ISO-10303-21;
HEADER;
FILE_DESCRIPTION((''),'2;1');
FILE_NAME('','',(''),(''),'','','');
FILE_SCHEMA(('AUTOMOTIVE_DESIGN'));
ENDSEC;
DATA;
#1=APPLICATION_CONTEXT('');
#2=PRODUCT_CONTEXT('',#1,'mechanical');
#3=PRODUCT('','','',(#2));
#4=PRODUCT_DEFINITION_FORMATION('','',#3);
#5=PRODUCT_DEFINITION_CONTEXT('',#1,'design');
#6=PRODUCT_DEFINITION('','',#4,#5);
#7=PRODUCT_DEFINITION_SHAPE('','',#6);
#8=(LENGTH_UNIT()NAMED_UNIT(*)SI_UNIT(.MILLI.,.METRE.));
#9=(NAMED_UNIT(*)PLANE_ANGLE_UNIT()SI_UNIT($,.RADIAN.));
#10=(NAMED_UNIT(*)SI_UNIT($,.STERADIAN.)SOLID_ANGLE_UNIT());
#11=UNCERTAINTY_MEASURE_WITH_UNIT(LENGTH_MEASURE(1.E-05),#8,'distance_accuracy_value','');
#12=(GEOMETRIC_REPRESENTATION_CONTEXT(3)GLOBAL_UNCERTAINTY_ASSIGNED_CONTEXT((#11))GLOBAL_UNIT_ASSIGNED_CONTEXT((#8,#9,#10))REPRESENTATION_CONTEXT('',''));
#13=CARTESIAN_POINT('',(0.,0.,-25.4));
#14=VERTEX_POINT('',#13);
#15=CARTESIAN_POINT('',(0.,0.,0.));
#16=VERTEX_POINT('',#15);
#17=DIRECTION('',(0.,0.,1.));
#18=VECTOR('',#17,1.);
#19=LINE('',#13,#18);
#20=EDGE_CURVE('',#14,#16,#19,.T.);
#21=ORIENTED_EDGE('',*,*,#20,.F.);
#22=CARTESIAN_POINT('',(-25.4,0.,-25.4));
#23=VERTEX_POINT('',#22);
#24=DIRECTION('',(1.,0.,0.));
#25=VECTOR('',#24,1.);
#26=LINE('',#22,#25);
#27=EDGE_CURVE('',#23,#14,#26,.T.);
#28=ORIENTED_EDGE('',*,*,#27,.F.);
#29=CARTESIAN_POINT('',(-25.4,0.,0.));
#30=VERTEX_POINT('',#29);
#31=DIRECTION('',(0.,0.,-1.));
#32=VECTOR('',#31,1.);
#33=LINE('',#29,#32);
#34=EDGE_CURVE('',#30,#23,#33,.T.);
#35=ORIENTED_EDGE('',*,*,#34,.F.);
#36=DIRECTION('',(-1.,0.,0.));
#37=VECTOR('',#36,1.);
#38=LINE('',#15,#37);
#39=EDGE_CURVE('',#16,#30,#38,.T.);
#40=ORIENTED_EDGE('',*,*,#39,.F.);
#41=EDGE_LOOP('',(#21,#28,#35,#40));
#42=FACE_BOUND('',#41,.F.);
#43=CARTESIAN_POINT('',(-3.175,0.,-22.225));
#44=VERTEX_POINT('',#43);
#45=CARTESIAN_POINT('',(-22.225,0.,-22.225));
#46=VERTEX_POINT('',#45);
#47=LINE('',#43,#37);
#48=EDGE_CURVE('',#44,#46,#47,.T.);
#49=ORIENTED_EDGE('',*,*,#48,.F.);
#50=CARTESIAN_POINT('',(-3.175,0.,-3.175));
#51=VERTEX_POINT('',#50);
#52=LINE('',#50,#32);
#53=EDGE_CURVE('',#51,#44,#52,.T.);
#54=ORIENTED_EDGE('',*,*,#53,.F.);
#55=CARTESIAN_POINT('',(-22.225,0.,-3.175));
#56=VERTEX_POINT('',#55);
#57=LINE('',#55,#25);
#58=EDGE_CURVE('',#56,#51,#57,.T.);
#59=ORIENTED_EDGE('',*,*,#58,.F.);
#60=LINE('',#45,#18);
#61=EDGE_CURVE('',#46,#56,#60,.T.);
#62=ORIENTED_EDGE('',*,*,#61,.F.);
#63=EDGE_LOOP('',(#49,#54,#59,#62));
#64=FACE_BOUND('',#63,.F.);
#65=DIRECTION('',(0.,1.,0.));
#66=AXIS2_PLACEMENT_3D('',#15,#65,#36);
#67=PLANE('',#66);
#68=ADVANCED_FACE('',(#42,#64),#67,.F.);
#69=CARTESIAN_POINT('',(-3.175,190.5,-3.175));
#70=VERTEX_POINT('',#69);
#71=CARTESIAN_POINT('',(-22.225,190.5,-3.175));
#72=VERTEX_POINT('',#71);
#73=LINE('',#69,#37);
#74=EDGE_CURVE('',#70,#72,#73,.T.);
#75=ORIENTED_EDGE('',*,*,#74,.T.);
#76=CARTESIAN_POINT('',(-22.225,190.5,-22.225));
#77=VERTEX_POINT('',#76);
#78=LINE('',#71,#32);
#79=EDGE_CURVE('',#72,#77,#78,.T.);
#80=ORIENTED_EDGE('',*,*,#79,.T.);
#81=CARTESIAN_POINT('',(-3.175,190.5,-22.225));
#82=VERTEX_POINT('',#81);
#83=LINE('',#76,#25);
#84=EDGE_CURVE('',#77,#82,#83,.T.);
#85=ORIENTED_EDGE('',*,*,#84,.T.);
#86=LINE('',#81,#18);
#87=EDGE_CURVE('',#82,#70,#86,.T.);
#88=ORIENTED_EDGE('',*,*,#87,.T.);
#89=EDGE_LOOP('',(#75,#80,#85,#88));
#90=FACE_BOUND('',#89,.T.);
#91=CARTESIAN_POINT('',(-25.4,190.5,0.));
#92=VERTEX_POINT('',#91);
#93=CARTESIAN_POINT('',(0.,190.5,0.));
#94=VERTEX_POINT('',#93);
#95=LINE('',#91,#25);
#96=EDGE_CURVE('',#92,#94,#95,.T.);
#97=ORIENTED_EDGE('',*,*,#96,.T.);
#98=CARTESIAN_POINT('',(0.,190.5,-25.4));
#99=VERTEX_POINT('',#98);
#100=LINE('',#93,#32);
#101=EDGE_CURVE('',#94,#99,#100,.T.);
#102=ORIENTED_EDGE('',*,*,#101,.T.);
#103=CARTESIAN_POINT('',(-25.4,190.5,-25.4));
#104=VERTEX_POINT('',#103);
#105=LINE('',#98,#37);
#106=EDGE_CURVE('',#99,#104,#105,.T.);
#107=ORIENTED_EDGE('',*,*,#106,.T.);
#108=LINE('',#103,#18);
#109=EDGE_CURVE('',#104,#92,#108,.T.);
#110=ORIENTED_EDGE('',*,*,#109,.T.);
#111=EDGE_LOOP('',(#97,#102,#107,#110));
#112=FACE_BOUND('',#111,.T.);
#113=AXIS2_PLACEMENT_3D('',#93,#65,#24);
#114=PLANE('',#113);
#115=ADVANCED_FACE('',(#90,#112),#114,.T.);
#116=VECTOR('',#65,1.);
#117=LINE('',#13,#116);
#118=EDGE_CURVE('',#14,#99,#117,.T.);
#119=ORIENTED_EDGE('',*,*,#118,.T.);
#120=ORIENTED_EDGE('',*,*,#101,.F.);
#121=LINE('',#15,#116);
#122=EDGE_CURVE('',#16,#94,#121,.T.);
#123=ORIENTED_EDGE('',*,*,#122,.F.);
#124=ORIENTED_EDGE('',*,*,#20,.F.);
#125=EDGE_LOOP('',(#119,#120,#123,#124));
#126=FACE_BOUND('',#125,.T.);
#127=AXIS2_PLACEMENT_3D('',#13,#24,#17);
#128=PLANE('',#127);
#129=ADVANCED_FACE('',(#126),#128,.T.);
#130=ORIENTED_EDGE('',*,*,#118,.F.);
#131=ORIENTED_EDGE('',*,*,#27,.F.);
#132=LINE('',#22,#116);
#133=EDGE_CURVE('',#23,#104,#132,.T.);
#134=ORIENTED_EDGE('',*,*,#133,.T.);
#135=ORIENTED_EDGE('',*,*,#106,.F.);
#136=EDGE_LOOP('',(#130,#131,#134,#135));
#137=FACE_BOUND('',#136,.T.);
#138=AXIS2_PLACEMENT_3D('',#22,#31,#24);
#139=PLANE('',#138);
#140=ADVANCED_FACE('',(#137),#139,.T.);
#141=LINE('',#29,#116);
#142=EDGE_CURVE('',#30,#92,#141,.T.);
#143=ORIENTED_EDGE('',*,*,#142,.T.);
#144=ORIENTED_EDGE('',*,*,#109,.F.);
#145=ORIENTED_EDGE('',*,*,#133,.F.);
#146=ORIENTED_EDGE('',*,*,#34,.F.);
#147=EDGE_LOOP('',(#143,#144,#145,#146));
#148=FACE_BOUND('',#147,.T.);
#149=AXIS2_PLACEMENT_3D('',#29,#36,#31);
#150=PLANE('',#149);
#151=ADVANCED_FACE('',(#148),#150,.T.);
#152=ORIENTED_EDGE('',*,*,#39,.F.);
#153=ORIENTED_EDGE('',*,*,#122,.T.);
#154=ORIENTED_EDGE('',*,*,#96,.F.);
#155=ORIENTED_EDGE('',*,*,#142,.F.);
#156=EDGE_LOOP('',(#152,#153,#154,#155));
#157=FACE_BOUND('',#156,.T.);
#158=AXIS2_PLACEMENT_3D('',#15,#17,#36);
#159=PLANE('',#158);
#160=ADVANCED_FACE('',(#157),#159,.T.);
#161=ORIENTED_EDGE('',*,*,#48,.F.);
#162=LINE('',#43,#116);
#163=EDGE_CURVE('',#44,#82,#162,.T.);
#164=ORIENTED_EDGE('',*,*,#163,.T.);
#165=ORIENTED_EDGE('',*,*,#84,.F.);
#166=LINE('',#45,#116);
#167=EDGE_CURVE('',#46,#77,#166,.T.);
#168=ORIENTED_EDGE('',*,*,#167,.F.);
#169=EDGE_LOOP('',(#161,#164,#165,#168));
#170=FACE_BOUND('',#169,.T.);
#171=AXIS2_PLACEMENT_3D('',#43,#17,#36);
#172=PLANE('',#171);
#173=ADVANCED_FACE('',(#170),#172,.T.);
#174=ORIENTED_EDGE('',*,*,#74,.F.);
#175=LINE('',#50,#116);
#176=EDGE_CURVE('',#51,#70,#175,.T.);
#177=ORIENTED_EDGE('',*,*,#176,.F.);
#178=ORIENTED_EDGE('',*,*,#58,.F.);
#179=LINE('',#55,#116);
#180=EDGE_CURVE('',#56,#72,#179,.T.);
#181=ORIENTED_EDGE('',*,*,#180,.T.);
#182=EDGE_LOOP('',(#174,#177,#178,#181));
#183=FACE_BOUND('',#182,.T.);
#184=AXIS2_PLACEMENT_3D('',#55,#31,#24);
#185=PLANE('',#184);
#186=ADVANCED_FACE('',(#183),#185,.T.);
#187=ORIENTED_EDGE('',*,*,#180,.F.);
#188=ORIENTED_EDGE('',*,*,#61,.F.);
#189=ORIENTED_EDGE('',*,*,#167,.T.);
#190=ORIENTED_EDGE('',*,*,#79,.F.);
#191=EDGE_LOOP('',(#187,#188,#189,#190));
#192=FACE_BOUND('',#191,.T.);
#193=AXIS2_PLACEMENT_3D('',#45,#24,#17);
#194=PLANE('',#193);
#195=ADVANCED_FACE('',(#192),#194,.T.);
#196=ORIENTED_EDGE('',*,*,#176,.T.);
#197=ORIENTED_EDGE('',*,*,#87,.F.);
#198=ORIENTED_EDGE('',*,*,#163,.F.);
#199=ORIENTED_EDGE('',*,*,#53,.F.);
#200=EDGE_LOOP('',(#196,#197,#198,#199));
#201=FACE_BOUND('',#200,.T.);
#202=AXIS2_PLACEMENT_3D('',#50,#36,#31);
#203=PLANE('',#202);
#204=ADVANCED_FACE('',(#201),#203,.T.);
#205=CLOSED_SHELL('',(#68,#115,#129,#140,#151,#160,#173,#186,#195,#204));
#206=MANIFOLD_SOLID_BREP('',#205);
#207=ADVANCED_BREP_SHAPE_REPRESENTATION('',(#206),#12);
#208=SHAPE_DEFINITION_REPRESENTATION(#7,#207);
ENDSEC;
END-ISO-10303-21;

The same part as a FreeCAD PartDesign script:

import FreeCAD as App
import Part
import Sketcher
Q = App.Units.Quantity


def add_polygon(sketch, points):
    """Adds a closed chain of lines whose ends are joined by coincident constraints."""
    first, n = sketch.GeometryCount, len(points)
    for a, b in zip(points, points[1:] + points[:1]):
        sketch.addGeometry(Part.LineSegment(App.Vector(*a, 0), App.Vector(*b, 0)), False)
    for i in range(n):
        sketch.addConstraint(Sketcher.Constraint("Coincident", first + i, 2, first + (i + 1) % n, 1))

doc = App.newDocument("Part")
body = doc.addObject("PartDesign::Body", "Body")

# Sketch on XZ plane
sketch1 = body.newObject("Sketcher::SketchObject", "Sketch")
sketch1.AttachmentSupport = (doc.getObject("XZ_Plane"), [""])
sketch1.MapMode = "FlatFace"
add_polygon(sketch1, [(-25, 0), (0, 0), (0, -25), (-25, -25)])  # lines 0-3
add_polygon(sketch1, [(-3, -3), (-22, -3), (-22, -22), (-3, -22)])  # lines 4-7
sketch1.addConstraint(Sketcher.Constraint("Horizontal", 0))
sketch1.addConstraint(Sketcher.Constraint("Vertical", 1))
sketch1.addConstraint(Sketcher.Constraint("Horizontal", 2))
sketch1.addConstraint(Sketcher.Constraint("Vertical", 3))
sketch1.addConstraint(Sketcher.Constraint("Horizontal", 4))
sketch1.addConstraint(Sketcher.Constraint("Vertical", 5))
sketch1.addConstraint(Sketcher.Constraint("Horizontal", 6))
sketch1.addConstraint(Sketcher.Constraint("Vertical", 7))
sketch1.addConstraint(Sketcher.Constraint("Coincident", 0, 2, -1, 1))
sketch1.addConstraint(Sketcher.Constraint("Equal", 2, 1))
sketch1.addConstraint(Sketcher.Constraint("Equal", 6, 5))
sketch1.addConstraint(Sketcher.Constraint("DistanceX", 0, 1, 0, 2, Q("1 in")))
sketch1.addConstraint(Sketcher.Constraint("DistanceY", 4, 2, -1, 1, Q("0.125 in")))
sketch1.addConstraint(Sketcher.Constraint("DistanceX", 6, 2, -1, 1, Q("0.125 in")))
sketch1.addConstraint(Sketcher.Constraint("DistanceX", 3, 2, 4, 2, Q("0.125 in")))
pad1 = body.newObject("PartDesign::Pad", "Pad")
pad1.Profile = sketch1
pad1.Length = Q("8.5 in")
pad1.Reversed = True

# Sketch on XZ plane
sketch2 = body.newObject("Sketcher::SketchObject", "Sketch001")
sketch2.AttachmentSupport = (doc.getObject("XZ_Plane"), [""])
sketch2.MapMode = "FlatFace"
sketch2.AttachmentOffset = App.Placement(App.Vector(0, 0, -8.5 * 25.4), App.Rotation())
add_polygon(sketch2, [(-25, -25), (-25, 0), (0, 0), (0, -25)])  # lines 0-3
add_polygon(sketch2, [(-3, -3), (-22, -3), (-22, -22), (-3, -22)])  # lines 4-7
sketch2.addConstraint(Sketcher.Constraint("Vertical", 0))
sketch2.addConstraint(Sketcher.Constraint("Horizontal", 1))
sketch2.addConstraint(Sketcher.Constraint("Vertical", 2))
sketch2.addConstraint(Sketcher.Constraint("Horizontal", 3))
sketch2.addConstraint(Sketcher.Constraint("Horizontal", 4))
sketch2.addConstraint(Sketcher.Constraint("Vertical", 5))
sketch2.addConstraint(Sketcher.Constraint("Horizontal", 6))
sketch2.addConstraint(Sketcher.Constraint("Vertical", 7))
sketch2.addConstraint(Sketcher.Constraint("Coincident", 1, 2, -1, 1))
sketch2.addConstraint(Sketcher.Constraint("Equal", 3, 0))
sketch2.addConstraint(Sketcher.Constraint("Equal", 6, 5))
sketch2.addConstraint(Sketcher.Constraint("DistanceX", 1, 1, 1, 2, Q("1 in")))
sketch2.addConstraint(Sketcher.Constraint("DistanceX", 4, 2, 4, 1, Q("0.75 in")))
sketch2.addConstraint(Sketcher.Constraint("DistanceX", 4, 2, -1, 1, Q("0.875 in")))
sketch2.addConstraint(Sketcher.Constraint("DistanceY", 4, 2, -1, 1, Q("0.125 in")))
pocket1 = body.newObject("PartDesign::Pocket", "Pocket")
pocket1.Profile = sketch2
pocket1.Length = Q("1 in")
pocket1.Reversed = True

doc.recompute()
